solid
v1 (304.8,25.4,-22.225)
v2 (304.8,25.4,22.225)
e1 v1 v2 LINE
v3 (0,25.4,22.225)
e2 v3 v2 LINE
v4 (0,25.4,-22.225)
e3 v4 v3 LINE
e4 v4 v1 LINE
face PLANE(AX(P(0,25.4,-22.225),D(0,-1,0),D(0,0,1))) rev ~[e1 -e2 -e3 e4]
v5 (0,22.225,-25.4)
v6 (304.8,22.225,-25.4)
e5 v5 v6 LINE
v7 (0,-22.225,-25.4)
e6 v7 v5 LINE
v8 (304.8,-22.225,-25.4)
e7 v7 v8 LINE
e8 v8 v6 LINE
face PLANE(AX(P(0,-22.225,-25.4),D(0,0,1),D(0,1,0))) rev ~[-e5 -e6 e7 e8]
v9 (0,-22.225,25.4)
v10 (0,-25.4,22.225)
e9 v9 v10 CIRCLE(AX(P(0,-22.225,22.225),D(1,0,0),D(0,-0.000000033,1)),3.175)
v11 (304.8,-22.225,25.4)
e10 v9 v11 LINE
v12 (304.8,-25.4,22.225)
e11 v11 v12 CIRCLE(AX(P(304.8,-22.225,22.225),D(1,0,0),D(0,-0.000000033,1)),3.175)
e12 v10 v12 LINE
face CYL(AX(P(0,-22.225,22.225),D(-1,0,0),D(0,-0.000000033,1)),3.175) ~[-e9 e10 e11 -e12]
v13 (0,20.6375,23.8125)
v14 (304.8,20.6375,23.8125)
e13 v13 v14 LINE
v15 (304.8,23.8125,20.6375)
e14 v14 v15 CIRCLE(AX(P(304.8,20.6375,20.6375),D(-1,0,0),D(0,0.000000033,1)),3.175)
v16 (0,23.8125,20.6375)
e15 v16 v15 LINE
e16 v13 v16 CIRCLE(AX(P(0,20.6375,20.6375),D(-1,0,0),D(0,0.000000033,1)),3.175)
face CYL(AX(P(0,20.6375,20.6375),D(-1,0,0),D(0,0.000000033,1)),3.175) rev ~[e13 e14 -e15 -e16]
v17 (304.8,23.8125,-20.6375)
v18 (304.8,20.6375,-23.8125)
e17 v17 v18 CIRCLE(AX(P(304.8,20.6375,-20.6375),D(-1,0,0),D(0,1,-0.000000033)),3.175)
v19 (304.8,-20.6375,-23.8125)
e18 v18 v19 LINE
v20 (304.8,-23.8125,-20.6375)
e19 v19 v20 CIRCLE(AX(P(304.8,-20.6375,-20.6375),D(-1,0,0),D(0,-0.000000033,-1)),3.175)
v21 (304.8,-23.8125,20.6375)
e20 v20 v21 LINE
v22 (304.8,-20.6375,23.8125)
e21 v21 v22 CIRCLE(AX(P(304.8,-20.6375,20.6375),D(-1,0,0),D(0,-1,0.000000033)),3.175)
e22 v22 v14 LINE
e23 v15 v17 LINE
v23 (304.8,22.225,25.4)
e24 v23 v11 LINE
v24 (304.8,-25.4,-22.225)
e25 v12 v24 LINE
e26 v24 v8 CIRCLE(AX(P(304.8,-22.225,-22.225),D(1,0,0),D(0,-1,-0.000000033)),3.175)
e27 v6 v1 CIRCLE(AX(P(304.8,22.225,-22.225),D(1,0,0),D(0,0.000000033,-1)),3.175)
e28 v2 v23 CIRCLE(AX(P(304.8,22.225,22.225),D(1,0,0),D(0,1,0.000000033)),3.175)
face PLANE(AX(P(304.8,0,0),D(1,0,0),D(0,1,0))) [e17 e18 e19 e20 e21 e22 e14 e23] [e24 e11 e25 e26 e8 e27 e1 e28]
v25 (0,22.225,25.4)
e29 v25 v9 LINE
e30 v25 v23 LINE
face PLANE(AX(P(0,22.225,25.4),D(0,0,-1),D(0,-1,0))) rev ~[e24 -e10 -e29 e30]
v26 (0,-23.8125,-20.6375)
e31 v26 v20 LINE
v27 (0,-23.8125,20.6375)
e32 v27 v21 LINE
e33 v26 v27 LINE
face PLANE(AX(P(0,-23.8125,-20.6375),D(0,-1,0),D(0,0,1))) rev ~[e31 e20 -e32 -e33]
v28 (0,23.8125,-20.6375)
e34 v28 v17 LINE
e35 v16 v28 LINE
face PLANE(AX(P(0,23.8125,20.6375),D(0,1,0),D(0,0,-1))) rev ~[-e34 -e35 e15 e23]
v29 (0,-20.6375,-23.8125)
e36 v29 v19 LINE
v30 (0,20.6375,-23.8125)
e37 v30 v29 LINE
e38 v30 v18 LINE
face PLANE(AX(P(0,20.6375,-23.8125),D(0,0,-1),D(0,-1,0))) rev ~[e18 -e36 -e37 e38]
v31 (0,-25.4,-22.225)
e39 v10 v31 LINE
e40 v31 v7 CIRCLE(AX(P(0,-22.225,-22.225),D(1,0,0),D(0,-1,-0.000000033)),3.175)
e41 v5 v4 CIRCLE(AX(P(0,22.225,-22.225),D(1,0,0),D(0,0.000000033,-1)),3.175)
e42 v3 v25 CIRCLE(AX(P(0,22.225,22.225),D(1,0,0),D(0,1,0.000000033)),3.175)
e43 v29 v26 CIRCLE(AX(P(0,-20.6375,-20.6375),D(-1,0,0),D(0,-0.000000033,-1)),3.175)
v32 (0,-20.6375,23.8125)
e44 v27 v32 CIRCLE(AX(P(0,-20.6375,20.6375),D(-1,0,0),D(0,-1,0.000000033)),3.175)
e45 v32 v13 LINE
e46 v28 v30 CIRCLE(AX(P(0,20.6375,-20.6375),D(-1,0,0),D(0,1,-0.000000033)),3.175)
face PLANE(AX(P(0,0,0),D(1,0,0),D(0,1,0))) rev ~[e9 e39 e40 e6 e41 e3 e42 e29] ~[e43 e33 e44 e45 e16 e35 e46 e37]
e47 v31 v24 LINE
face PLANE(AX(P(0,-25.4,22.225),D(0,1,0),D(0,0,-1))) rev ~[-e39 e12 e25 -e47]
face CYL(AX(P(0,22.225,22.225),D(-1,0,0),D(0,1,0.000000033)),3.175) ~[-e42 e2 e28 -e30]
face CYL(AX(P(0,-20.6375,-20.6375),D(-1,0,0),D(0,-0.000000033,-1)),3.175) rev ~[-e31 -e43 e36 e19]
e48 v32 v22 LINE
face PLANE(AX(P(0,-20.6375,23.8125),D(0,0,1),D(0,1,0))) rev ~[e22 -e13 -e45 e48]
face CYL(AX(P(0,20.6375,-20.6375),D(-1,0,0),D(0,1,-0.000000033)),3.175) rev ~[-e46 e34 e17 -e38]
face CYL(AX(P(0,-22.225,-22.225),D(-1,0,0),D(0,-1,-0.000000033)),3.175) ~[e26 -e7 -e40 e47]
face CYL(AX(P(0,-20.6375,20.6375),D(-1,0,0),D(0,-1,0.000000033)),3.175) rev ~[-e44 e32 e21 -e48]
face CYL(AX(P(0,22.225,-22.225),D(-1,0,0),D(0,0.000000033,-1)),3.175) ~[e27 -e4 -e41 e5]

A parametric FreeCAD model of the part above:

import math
import FreeCAD as App
import Part
import Sketcher
from FreeCAD import Vector
Q = App.Units.Quantity

doc = App.newDocument("Part")
body = doc.addObject("PartDesign::Body", "Body")

sketch1 = body.newObject("Sketcher::SketchObject", "Sketch")
sketch1.AttachmentSupport = (doc.getObject("YZ_Plane"), [""])
sketch1.MapMode = "FlatFace"
sketch1.addGeometry(Part.ArcOfCircle(Part.Circle(Vector(22.2, 22.2, 0), Vector(0, 0, 1), 3.2), math.radians(0), math.radians(90)), False)
sketch1.addGeometry(Part.LineSegment(Vector(22.2, 25.4, 0), Vector(-22.2, 25.4, 0)), False)
sketch1.addGeometry(Part.ArcOfCircle(Part.Circle(Vector(-22.2, 22.2, 0), Vector(0, 0, 1), 3.2), math.radians(90), math.radians(180)), False)
sketch1.addGeometry(Part.LineSegment(Vector(-25.4, 22.2, 0), Vector(-25.4, -22.2, 0)), False)
sketch1.addGeometry(Part.ArcOfCircle(Part.Circle(Vector(-22.2, -22.2, 0), Vector(0, 0, 1), 3.2), math.radians(-180), math.radians(-90)), False)
sketch1.addGeometry(Part.LineSegment(Vector(-22.2, -25.4, 0), Vector(22.2, -25.4, 0)), False)
sketch1.addGeometry(Part.ArcOfCircle(Part.Circle(Vector(22.2, -22.2, 0), Vector(0, 0, 1), 3.2), math.radians(-90), math.radians(0)), False)
sketch1.addGeometry(Part.LineSegment(Vector(25.4, -22.2, 0), Vector(25.4, 22.2, 0)), False)
sketch1.addGeometry(Part.ArcOfCircle(Part.Circle(Vector(-20.6, 20.6, 0), Vector(0, 0, 1), 3.2), math.radians(90), math.radians(180)), False)
sketch1.addGeometry(Part.LineSegment(Vector(-20.6, 23.8, 0), Vector(20.6, 23.8, 0)), False)
sketch1.addGeometry(Part.ArcOfCircle(Part.Circle(Vector(20.6, 20.6, 0), Vector(0, 0, 1), 3.2), math.radians(0), math.radians(90)), False)
sketch1.addGeometry(Part.LineSegment(Vector(23.8, 20.6, 0), Vector(23.8, -20.6, 0)), False)
sketch1.addGeometry(Part.ArcOfCircle(Part.Circle(Vector(20.6, -20.6, 0), Vector(0, 0, 1), 3.2), math.radians(-90), math.radians(0)), False)
sketch1.addGeometry(Part.LineSegment(Vector(20.6, -23.8, 0), Vector(-20.6, -23.8, 0)), False)
sketch1.addGeometry(Part.ArcOfCircle(Part.Circle(Vector(-20.6, -20.6, 0), Vector(0, 0, 1), 3.2), math.radians(-180), math.radians(-90)), False)
sketch1.addGeometry(Part.LineSegment(Vector(-23.8, -20.6, 0), Vector(-23.8, 20.6, 0)), False)
sketch1.addConstraint(Sketcher.Constraint("Tangent", 0, 2, 1, 1))
sketch1.addConstraint(Sketcher.Constraint("Tangent", 1, 2, 2, 1))
sketch1.addConstraint(Sketcher.Constraint("Tangent", 2, 2, 3, 1))
sketch1.addConstraint(Sketcher.Constraint("Tangent", 3, 2, 4, 1))
sketch1.addConstraint(Sketcher.Constraint("Tangent", 4, 2, 5, 1))
sketch1.addConstraint(Sketcher.Constraint("Tangent", 5, 2, 6, 1))
sketch1.addConstraint(Sketcher.Constraint("Tangent", 6, 2, 7, 1))
sketch1.addConstraint(Sketcher.Constraint("Tangent", 7, 2, 0, 1))
sketch1.addConstraint(Sketcher.Constraint("Tangent", 8, 1, 9, 1))
sketch1.addConstraint(Sketcher.Constraint("Tangent", 9, 2, 10, 2))
sketch1.addConstraint(Sketcher.Constraint("Tangent", 10, 1, 11, 1))
sketch1.addConstraint(Sketcher.Constraint("Tangent", 11, 2, 12, 2))
sketch1.addConstraint(Sketcher.Constraint("Tangent", 12, 1, 13, 1))
sketch1.addConstraint(Sketcher.Constraint("Tangent", 13, 2, 14, 2))
sketch1.addConstraint(Sketcher.Constraint("Tangent", 14, 1, 15, 1))
sketch1.addConstraint(Sketcher.Constraint("Tangent", 15, 2, 8, 2))
sketch1.addConstraint(Sketcher.Constraint("Horizontal", 1))
sketch1.addConstraint(Sketcher.Constraint("Vertical", 3))
sketch1.addConstraint(Sketcher.Constraint("Horizontal", 5))
sketch1.addConstraint(Sketcher.Constraint("Vertical", 7))
sketch1.addConstraint(Sketcher.Constraint("Horizontal", 9))
sketch1.addConstraint(Sketcher.Constraint("Vertical", 11))
sketch1.addConstraint(Sketcher.Constraint("Horizontal", 13))
sketch1.addConstraint(Sketcher.Constraint("Vertical", 15))
sketch1.addConstraint(Sketcher.Constraint("Equal", 0, 2))
sketch1.addConstraint(Sketcher.Constraint("Equal", 2, 4))
sketch1.addConstraint(Sketcher.Constraint("Equal", 4, 6))
sketch1.addConstraint(Sketcher.Constraint("Equal", 6, 8))
sketch1.addConstraint(Sketcher.Constraint("Equal", 8, 10))
sketch1.addConstraint(Sketcher.Constraint("Equal", 10, 12))
sketch1.addConstraint(Sketcher.Constraint("Equal", 12, 14))
sketch1.addConstraint(Sketcher.Constraint("Symmetric", 0, 3, 4, 3, -1, 1))
sketch1.addConstraint(Sketcher.Constraint("Symmetric", 8, 3, 12, 3, -1, 1))
sketch1.addConstraint(Sketcher.Constraint("Equal", 5, 3))
sketch1.addConstraint(Sketcher.Constraint("Equal", 13, 11))
sketch1.addConstraint(Sketcher.Constraint("DistanceY", -1, 1, 0, 2, Q("1 in")))
sketch1.addConstraint(Sketcher.Constraint("Radius", 0, Q("0.125 in")))
sketch1.addConstraint(Sketcher.Constraint("DistanceX", 9, 1, 9, 2, Q("1.625 in")))
pad1 = body.newObject("PartDesign::Pad", "Pad")
pad1.Profile = sketch1
pad1.Length = Q("12 in")

doc.recompute()
